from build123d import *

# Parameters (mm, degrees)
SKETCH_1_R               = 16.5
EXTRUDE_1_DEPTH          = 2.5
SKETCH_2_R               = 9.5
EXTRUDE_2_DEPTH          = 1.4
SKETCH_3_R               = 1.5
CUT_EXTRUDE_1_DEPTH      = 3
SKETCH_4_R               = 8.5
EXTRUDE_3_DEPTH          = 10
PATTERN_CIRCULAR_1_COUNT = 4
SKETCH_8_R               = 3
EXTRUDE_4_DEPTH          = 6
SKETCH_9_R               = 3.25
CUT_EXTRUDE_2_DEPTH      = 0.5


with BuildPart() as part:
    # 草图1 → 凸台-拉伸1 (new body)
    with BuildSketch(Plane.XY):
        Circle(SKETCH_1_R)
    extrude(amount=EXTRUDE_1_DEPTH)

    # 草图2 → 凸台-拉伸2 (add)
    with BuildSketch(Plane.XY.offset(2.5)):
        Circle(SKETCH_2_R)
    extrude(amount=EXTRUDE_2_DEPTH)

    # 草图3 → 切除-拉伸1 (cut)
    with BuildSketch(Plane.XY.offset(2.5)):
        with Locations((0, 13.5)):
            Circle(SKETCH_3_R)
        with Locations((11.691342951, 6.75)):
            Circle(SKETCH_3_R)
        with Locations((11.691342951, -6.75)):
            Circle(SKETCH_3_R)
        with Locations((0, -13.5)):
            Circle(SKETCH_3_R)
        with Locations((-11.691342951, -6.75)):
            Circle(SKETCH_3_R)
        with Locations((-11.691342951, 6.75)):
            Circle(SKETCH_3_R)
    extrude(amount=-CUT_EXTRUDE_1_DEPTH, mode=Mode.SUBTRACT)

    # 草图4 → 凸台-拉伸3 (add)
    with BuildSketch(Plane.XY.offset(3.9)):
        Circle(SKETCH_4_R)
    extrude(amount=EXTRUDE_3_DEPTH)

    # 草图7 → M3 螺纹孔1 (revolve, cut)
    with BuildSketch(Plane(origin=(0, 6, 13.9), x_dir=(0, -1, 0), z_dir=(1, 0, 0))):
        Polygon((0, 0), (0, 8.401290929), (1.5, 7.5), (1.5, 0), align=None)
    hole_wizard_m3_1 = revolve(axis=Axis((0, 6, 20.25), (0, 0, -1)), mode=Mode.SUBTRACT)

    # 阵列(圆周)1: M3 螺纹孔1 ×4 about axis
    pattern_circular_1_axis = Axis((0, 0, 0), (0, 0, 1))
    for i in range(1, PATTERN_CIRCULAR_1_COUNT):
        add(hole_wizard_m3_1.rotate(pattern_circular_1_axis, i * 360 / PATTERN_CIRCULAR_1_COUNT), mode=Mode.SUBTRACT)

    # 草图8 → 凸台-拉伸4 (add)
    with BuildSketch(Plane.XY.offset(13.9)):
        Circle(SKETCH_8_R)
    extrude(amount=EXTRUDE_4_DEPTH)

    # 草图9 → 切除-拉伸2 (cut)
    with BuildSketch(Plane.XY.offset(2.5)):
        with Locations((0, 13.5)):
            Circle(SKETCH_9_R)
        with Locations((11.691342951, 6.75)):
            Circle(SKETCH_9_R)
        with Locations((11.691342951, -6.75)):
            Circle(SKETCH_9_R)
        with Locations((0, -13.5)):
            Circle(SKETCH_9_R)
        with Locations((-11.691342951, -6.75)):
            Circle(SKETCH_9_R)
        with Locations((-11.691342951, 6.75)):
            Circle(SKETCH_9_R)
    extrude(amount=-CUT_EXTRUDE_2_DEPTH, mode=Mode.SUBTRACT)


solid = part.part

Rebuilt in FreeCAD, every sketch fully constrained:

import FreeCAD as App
import Part
import Sketcher
from FreeCAD import Vector
Q = App.Units.Quantity


def add_polygon(sketch, points):
    """Adds a closed chain of lines whose ends are joined by coincident constraints."""
    first, n = sketch.GeometryCount, len(points)
    for a, b in zip(points, points[1:] + points[:1]):
        sketch.addGeometry(Part.LineSegment(App.Vector(*a, 0), App.Vector(*b, 0)), False)
    for i in range(n):
        sketch.addConstraint(Sketcher.Constraint("Coincident", first + i, 2, first + (i + 1) % n, 1))

doc = App.newDocument("Part")
body = doc.addObject("PartDesign::Body", "Body")

sketch1 = doc.addObject("Sketcher::SketchObject", "Sketch")
body.addObject(sketch1)
sketch1.AttachmentSupport = (doc.XY_Plane, [""])
sketch1.MapMode = "FlatFace"
sketch1.addGeometry(Part.Circle(Vector(0, 0, 0), Vector(0, 0, 1), 16.5), False)
sketch1.addConstraint([
    Sketcher.Constraint("Coincident", 0, 3, -1, 1),
    Sketcher.Constraint("Diameter", 0, 33.0),
])
pad1 = doc.addObject("PartDesign::Pad", "Pad")
body.addObject(pad1)
pad1.Profile = sketch1
pad1.Length = 2.5

sketch2 = doc.addObject("Sketcher::SketchObject", "Sketch001")
body.addObject(sketch2)
sketch2.AttachmentSupport = (doc.XY_Plane, [""])
sketch2.MapMode = "FlatFace"
sketch2.AttachmentOffset = App.Placement(Vector(0, 0, 2.5), App.Rotation())
sketch2.addGeometry(Part.Circle(Vector(0, 0, 0), Vector(0, 0, 1), 9.5), False)
sketch2.addConstraint([
    Sketcher.Constraint("Coincident", 0, 3, -1, 1),
    Sketcher.Constraint("Diameter", 0, 19.0),
])
pad2 = doc.addObject("PartDesign::Pad", "Pad001")
body.addObject(pad2)
pad2.Profile = sketch2
pad2.Length = 1.4

sketch3 = doc.addObject("Sketcher::SketchObject", "Sketch002")
body.addObject(sketch3)
sketch3.AttachmentSupport = (doc.XY_Plane, [""])
sketch3.MapMode = "FlatFace"
sketch3.AttachmentOffset = App.Placement(Vector(0, 0, 2.5), App.Rotation())
sketch3.addGeometry([
    Part.Circle(Vector(0, 13.5, 0), Vector(0, 0, 1), 1.5),
    Part.Circle(Vector(11.691343, 6.75, 0), Vector(0, 0, 1), 1.5),
    Part.Circle(Vector(11.691343, -6.75, 0), Vector(0, 0, 1), 1.5),
    Part.Circle(Vector(0, -13.5, 0), Vector(0, 0, 1), 1.5),
    Part.Circle(Vector(-11.691343, -6.75, 0), Vector(0, 0, 1), 1.5),
    Part.Circle(Vector(-11.691343, 6.75, 0), Vector(0, 0, 1), 1.5),
], False)
sketch3.addConstraint([
    Sketcher.Constraint("Equal", 0, 1),
    Sketcher.Constraint("Equal", 1, 2),
    Sketcher.Constraint("Equal", 2, 3),
    Sketcher.Constraint("Equal", 3, 4),
    Sketcher.Constraint("Equal", 4, 5),
    Sketcher.Constraint("Symmetric", 0, 3, 3, 3, -1, 1),
    Sketcher.Constraint("Symmetric", 1, 3, 4, 3, -1, 1),
    Sketcher.Constraint("Symmetric", 2, 3, 5, 3, -1, 1),
    Sketcher.Constraint("Symmetric", 2, 3, 4, 3, -2),
    Sketcher.Constraint("PointOnObject", 0, 3, -2),
    Sketcher.Constraint("Diameter", 0, 3.0),
    Sketcher.Constraint("DistanceY", 3, 3, 0, 3, 27.0),
    Sketcher.Constraint("DistanceY", 2, 3, 1, 3, 13.5),
    Sketcher.Constraint("DistanceX", -1, 1, 1, 3, 11.691343),
])
pocket1 = doc.addObject("PartDesign::Pocket", "Pocket")
body.addObject(pocket1)
pocket1.Profile = sketch3
pocket1.Length = 3

sketch4 = doc.addObject("Sketcher::SketchObject", "Sketch003")
body.addObject(sketch4)
sketch4.AttachmentSupport = (doc.XY_Plane, [""])
sketch4.MapMode = "FlatFace"
sketch4.AttachmentOffset = App.Placement(Vector(0, 0, 3.9), App.Rotation())
sketch4.addGeometry(Part.Circle(Vector(0, 0, 0), Vector(0, 0, 1), 8.5), False)
sketch4.addConstraint([
    Sketcher.Constraint("Coincident", 0, 3, -1, 1),
    Sketcher.Constraint("Diameter", 0, 17.0),
])
pad3 = doc.addObject("PartDesign::Pad", "Pad002")
body.addObject(pad3)
pad3.Profile = sketch4
pad3.Length = 10

sketch5 = doc.addObject("Sketcher::SketchObject", "Sketch004")
body.addObject(sketch5)
sketch5.AttachmentSupport = (doc.YZ_Plane, [""])
sketch5.MapMode = "FlatFace"
add_polygon(sketch5, [(6, 5.498709), (6, 13.9), (4.5, 13.9), (4.5, 6.4)])
sketch5.addGeometry(Part.LineSegment(Vector(6, 13.9, 0), Vector(6, 5.498709, 0)), True)
sketch5.addConstraint([
    Sketcher.Constraint("Vertical", 0),
    Sketcher.Constraint("Horizontal", 1),
    Sketcher.Constraint("Vertical", 2),
    Sketcher.Constraint("Vertical", 4),
    Sketcher.Constraint("Coincident", 4, 1, 0, 2),
    Sketcher.Constraint("Equal", 0, 4),
    Sketcher.Constraint("Angle", 3, Q("-31 deg")),
    Sketcher.Constraint("DistanceX", 1, 2, 1, 1, 1.5),
    Sketcher.Constraint("DistanceY", 2, 2, 2, 1, 7.5),
    Sketcher.Constraint("DistanceX", -1, 1, 0, 2, 6.0),
    Sketcher.Constraint("DistanceY", -1, 1, 0, 2, 13.9),
])
groove = doc.addObject("PartDesign::Groove", "Groove")
body.addObject(groove)
groove.Profile = sketch5
groove.ReferenceAxis = (sketch5, ["Axis0"])
groove.Angle = 360
doc.recompute()

polarpattern = doc.addObject("PartDesign::PolarPattern", "PolarPattern")
body.addObject(polarpattern)
polarpattern.Originals = [groove]
polarpattern.Axis = (doc.Z_Axis, [""])
polarpattern.Angle = 360
polarpattern.Occurrences = 4
body.Tip = polarpattern

sketch6 = doc.addObject("Sketcher::SketchObject", "Sketch005")
body.addObject(sketch6)
sketch6.AttachmentSupport = (doc.XY_Plane, [""])
sketch6.MapMode = "FlatFace"
sketch6.AttachmentOffset = App.Placement(Vector(0, 0, 13.9), App.Rotation())
sketch6.addGeometry(Part.Circle(Vector(0, 0, 0), Vector(0, 0, 1), 3), False)
sketch6.addConstraint([
    Sketcher.Constraint("Coincident", 0, 3, -1, 1),
    Sketcher.Constraint("Diameter", 0, 6.0),
])
pad4 = doc.addObject("PartDesign::Pad", "Pad003")
body.addObject(pad4)
pad4.Profile = sketch6
pad4.Length = 6

sketch7 = doc.addObject("Sketcher::SketchObject", "Sketch006")
body.addObject(sketch7)
sketch7.AttachmentSupport = (doc.XY_Plane, [""])
sketch7.MapMode = "FlatFace"
sketch7.AttachmentOffset = App.Placement(Vector(0, 0, 2.5), App.Rotation())
sketch7.addGeometry([
    Part.Circle(Vector(0, 13.5, 0), Vector(0, 0, 1), 3.25),
    Part.Circle(Vector(11.691343, 6.75, 0), Vector(0, 0, 1), 3.25),
    Part.Circle(Vector(11.691343, -6.75, 0), Vector(0, 0, 1), 3.25),
    Part.Circle(Vector(0, -13.5, 0), Vector(0, 0, 1), 3.25),
    Part.Circle(Vector(-11.691343, -6.75, 0), Vector(0, 0, 1), 3.25),
    Part.Circle(Vector(-11.691343, 6.75, 0), Vector(0, 0, 1), 3.25),
], False)
sketch7.addConstraint([
    Sketcher.Constraint("Equal", 0, 1),
    Sketcher.Constraint("Equal", 1, 2),
    Sketcher.Constraint("Equal", 2, 3),
    Sketcher.Constraint("Equal", 3, 4),
    Sketcher.Constraint("Equal", 4, 5),
    Sketcher.Constraint("Symmetric", 0, 3, 3, 3, -1, 1),
    Sketcher.Constraint("Symmetric", 1, 3, 4, 3, -1, 1),
    Sketcher.Constraint("Symmetric", 2, 3, 5, 3, -1, 1),
    Sketcher.Constraint("Symmetric", 2, 3, 4, 3, -2),
    Sketcher.Constraint("PointOnObject", 0, 3, -2),
    Sketcher.Constraint("Diameter", 0, 6.5),
    Sketcher.Constraint("DistanceY", 3, 3, 0, 3, 27.0),
    Sketcher.Constraint("DistanceY", 2, 3, 1, 3, 13.5),
    Sketcher.Constraint("DistanceX", -1, 1, 1, 3, 11.691343),
])
pocket2 = doc.addObject("PartDesign::Pocket", "Pocket001")
body.addObject(pocket2)
pocket2.Profile = sketch7
pocket2.Length = 0.5

doc.recompute()
